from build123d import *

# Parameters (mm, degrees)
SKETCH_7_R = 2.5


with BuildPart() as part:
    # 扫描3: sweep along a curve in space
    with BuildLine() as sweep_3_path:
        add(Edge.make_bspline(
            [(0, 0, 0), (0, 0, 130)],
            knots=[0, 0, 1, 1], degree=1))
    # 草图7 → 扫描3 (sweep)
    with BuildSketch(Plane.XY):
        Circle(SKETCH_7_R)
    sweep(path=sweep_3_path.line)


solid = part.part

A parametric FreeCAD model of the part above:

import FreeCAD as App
import Part
import Sketcher
Q = App.Units.Quantity

doc = App.newDocument("Part")
body = doc.addObject("PartDesign::Body", "Body")

sketch1 = doc.addObject("Sketcher::SketchObject", "Sketch")
body.addObject(sketch1)
sketch1.AttachmentSupport = (doc.XY_Plane, [""])
sketch1.MapMode = "FlatFace"
sketch1.addGeometry(Part.Circle(App.Vector(0, 0, 0), App.Vector(0, 0, 1), 2.5), False)
sketch1.addConstraint([
    Sketcher.Constraint("Coincident", 0, 3, -1, 1),
    Sketcher.Constraint("Diameter", 0, Q("5 mm")),
])

sketch2 = doc.addObject("Sketcher::SketchObject", "Sketch001")
body.addObject(sketch2)
sketch2.AttachmentSupport = (doc.XZ_Plane, [""])
sketch2.MapMode = "FlatFace"
sketch2.addGeometry(Part.BSplineCurve([App.Vector(0, 0, 0), App.Vector(0, 130, 0)], [2, 2], [0, 1], False, 1, [1, 1], False), False)
sketch2.addConstraint(Sketcher.Constraint("Block", 0))
doc.recompute()

additivepipe = doc.addObject("PartDesign::AdditivePipe", "AdditivePipe")
body.addObject(additivepipe)
additivepipe.Profile = sketch1
additivepipe.Spine = (sketch2, ["Edge1"])

doc.recompute()
